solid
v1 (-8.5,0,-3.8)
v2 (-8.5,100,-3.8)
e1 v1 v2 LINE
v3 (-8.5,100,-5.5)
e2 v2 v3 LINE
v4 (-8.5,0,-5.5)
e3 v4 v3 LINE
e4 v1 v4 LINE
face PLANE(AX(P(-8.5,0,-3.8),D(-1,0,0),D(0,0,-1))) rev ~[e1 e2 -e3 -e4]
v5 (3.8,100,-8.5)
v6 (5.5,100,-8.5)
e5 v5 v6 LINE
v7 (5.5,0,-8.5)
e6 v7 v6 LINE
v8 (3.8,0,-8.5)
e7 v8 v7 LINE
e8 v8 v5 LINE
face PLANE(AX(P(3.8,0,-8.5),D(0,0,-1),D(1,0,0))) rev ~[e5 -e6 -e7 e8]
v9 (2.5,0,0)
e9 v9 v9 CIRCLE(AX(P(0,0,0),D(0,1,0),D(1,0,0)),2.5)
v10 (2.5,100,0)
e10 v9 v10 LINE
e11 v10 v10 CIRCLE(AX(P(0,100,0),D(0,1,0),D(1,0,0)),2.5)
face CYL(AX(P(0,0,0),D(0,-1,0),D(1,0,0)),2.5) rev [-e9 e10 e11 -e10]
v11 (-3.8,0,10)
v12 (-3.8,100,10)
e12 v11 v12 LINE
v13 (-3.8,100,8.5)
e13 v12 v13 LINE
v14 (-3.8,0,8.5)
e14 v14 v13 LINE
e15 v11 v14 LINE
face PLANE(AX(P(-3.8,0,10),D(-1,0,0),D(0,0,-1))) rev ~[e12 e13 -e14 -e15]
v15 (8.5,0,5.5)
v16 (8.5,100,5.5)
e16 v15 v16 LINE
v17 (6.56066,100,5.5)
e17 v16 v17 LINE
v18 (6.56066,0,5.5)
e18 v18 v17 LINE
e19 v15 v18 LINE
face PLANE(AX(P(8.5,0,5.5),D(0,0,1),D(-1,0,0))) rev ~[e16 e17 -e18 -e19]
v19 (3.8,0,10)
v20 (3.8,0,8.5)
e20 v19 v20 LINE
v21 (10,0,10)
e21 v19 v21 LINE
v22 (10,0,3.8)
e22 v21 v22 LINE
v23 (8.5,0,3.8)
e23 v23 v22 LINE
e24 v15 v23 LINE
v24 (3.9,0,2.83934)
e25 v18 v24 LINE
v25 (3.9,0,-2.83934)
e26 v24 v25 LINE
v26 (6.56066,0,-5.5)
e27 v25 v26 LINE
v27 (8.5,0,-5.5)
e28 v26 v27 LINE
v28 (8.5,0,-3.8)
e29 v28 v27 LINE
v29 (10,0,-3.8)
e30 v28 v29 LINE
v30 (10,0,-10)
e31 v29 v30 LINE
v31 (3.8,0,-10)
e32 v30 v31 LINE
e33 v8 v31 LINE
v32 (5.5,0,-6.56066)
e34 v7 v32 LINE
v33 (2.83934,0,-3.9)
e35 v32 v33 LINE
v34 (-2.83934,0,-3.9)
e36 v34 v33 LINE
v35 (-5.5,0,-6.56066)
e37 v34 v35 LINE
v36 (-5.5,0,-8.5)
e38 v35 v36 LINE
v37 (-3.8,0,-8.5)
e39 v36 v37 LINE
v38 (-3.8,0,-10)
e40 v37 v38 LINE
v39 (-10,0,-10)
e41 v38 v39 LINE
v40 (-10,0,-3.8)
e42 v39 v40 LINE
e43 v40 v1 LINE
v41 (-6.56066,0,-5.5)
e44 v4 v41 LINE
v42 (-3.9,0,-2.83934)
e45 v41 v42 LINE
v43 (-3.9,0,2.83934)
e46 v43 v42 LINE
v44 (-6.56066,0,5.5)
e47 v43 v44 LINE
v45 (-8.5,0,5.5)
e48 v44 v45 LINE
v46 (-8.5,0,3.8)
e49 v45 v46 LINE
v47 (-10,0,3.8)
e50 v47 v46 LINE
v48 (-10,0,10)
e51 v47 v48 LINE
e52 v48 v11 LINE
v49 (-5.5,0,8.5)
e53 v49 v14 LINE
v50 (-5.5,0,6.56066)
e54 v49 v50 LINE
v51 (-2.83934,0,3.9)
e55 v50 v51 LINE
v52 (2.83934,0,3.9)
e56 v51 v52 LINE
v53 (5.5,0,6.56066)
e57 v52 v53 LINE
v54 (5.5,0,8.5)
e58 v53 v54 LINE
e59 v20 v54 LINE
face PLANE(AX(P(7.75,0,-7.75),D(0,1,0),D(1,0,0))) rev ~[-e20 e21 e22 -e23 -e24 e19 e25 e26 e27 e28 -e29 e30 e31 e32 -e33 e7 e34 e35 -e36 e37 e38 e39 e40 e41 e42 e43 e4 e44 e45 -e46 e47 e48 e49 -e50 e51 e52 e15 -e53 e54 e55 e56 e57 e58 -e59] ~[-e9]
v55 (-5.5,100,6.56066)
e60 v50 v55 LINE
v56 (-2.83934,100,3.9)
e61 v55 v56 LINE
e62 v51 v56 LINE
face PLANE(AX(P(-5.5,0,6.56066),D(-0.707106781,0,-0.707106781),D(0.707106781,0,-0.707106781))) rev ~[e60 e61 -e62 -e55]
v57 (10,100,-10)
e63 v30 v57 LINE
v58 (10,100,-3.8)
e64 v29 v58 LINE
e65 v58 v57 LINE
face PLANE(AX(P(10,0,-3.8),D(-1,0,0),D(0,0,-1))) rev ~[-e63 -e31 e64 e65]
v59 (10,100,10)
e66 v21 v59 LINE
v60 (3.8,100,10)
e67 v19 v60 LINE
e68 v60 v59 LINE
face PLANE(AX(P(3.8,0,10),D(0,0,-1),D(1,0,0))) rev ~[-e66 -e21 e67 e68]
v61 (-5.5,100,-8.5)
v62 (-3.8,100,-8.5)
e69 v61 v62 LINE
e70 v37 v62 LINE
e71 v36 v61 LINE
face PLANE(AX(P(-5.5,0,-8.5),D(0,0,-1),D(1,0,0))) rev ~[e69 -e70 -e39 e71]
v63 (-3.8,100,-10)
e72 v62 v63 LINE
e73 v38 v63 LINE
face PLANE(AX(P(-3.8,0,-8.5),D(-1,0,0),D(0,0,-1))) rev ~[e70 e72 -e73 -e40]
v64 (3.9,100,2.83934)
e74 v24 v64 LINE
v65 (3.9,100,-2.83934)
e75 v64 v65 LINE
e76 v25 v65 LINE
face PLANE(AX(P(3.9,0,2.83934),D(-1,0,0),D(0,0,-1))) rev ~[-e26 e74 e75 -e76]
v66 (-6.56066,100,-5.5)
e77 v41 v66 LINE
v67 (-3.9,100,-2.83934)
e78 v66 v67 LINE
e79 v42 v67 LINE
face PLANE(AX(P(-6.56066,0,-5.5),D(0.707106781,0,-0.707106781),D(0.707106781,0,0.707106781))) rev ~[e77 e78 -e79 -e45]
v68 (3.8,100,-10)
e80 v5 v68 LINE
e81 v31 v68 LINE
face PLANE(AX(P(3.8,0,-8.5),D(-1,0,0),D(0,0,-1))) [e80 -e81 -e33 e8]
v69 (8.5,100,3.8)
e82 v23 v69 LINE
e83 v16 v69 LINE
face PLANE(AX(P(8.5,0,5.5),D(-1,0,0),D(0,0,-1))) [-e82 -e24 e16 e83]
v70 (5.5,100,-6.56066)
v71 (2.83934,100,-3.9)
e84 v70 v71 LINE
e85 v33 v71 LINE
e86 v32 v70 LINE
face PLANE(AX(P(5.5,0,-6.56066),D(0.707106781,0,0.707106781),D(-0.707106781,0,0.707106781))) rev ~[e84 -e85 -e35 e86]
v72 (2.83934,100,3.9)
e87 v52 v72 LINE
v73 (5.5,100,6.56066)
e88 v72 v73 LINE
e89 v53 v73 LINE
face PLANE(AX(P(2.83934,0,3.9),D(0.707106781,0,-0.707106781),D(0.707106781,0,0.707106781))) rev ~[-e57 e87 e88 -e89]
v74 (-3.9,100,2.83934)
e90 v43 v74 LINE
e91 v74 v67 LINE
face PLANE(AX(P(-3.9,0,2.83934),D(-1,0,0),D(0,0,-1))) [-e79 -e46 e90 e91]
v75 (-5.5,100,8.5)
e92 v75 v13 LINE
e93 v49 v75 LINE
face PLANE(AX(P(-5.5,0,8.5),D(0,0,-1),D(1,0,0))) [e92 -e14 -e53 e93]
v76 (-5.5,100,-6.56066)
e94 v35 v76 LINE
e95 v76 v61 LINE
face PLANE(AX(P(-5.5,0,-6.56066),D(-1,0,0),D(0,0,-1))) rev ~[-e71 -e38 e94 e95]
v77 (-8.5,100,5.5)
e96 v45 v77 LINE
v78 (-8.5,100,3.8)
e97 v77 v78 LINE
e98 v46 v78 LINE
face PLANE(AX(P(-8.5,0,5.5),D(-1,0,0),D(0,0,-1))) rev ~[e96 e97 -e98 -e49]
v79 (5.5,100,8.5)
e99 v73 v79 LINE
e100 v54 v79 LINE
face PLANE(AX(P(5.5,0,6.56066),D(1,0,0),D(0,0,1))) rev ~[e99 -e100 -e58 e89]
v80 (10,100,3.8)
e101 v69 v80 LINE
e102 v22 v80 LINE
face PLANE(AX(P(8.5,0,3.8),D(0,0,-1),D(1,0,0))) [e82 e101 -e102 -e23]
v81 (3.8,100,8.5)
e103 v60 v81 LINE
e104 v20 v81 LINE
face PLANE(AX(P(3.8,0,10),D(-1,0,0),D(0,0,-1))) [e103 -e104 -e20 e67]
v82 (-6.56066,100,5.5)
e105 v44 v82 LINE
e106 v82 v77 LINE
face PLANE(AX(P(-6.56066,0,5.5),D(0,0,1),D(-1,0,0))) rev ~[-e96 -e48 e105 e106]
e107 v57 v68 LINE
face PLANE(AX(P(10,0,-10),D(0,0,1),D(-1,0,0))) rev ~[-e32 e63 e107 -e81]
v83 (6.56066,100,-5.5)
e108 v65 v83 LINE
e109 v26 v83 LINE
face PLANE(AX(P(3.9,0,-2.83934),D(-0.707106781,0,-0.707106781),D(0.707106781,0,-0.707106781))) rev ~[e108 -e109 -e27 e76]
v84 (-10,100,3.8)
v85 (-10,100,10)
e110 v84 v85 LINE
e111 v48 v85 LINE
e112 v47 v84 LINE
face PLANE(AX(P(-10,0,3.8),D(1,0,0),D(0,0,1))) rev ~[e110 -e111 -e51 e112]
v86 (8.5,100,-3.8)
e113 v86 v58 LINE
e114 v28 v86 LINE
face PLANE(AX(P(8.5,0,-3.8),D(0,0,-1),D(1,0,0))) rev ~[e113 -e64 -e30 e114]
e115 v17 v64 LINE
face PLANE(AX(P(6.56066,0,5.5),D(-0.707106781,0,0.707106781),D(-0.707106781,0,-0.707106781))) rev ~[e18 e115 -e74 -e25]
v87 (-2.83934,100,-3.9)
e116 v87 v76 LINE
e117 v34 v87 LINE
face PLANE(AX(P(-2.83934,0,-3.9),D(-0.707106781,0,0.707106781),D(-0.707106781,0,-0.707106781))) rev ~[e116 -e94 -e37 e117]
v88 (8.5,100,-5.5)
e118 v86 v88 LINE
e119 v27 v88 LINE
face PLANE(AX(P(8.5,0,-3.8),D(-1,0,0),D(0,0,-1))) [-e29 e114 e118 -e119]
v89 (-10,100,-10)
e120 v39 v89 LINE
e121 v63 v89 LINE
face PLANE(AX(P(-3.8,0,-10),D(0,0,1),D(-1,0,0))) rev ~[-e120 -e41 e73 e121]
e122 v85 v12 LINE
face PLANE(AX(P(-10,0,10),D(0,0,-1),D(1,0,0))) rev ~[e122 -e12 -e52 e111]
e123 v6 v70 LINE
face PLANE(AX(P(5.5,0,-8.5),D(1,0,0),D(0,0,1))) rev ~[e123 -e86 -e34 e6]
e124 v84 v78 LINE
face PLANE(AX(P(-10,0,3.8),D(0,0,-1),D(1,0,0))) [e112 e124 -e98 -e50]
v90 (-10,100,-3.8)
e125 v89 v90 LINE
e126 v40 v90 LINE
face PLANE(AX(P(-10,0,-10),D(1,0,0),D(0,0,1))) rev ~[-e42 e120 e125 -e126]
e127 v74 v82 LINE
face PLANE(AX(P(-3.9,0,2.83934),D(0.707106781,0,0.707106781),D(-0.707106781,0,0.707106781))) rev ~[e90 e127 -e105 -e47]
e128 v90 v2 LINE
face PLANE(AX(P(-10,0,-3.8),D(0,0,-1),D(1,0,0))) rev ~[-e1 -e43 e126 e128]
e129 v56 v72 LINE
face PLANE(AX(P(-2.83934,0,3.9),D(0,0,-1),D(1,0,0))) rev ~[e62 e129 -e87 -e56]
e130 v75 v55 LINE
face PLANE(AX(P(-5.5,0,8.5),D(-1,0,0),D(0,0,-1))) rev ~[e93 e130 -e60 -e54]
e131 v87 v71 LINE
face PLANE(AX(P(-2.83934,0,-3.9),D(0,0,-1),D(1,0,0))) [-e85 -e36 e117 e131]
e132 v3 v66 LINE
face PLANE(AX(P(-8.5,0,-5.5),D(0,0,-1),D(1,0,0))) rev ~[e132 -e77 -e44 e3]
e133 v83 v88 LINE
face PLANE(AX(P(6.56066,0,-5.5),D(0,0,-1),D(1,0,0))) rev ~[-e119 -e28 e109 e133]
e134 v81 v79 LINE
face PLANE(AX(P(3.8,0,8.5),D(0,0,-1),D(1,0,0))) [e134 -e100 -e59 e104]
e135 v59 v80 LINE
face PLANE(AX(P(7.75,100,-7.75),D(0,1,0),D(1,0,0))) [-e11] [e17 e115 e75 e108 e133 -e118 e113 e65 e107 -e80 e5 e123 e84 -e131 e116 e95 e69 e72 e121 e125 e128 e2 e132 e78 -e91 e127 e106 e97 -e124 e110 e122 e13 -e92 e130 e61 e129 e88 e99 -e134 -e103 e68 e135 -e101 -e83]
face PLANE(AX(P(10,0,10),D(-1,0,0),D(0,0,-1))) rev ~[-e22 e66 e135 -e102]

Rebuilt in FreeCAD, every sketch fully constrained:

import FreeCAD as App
import Part
import Sketcher
from FreeCAD import Vector


def add_polygon(sketch, points):
    """Adds a closed chain of lines whose ends are joined by coincident constraints."""
    first, n = sketch.GeometryCount, len(points)
    for a, b in zip(points, points[1:] + points[:1]):
        sketch.addGeometry(Part.LineSegment(App.Vector(*a, 0), App.Vector(*b, 0)), False)
    for i in range(n):
        sketch.addConstraint(Sketcher.Constraint("Coincident", first + i, 2, first + (i + 1) % n, 1))

doc = App.newDocument("Part")
params = doc.addObject("Spreadsheet::Sheet", "Params")
for row, (alias, value) in enumerate([
    ("sketch1_diameter", "5 mm"),
    ("sketch1_width", "1.5 mm"),
    ("sketch1_width2", "6.2 mm"),
    ("sketch1_width3", "1.7 mm"),
    ("pad1_length", "100 mm"),
], start=1):
    params.set(f"A{row}", alias)
    params.set(f"B{row}", "=" + value)
    params.setAlias(f"B{row}", alias)

body = doc.addObject("PartDesign::Body", "Body")

sketch1 = doc.addObject("Sketcher::SketchObject", "Sketch")
body.addObject(sketch1)
sketch1.AttachmentSupport = (doc.XZ_Plane, [""])
sketch1.MapMode = "FlatFace"
add_polygon(sketch1, [(6.6, -5.5), (8.5, -5.5), (8.5, -3.8), (10, -3.8), (10, -10), (3.8, -10), (3.8, -8.5), (5.5, -8.5), (5.5, -6.6), (2.8, -3.9), (-2.8, -3.9), (-5.5, -6.6), (-5.5, -8.5), (-3.8, -8.5), (-3.8, -10), (-10, -10), (-10, -3.8), (-8.5, -3.8), (-8.5, -5.5), (-6.6, -5.5), (-3.9, -2.8), (-3.9, 2.8), (-6.6, 5.5), (-8.5, 5.5), (-8.5, 3.8), (-10, 3.8), (-10, 10), (-3.8, 10), (-3.8, 8.5), (-5.5, 8.5), (-5.5, 6.6), (-2.8, 3.9), (2.8, 3.9), (5.5, 6.6), (5.5, 8.5), (3.8, 8.5), (3.8, 10), (10, 10), (10, 3.8), (8.5, 3.8), (8.5, 5.5), (6.6, 5.5), (3.9, 2.8), (3.9, -2.8)])
sketch1.addGeometry(Part.Circle(Vector(0, 0, 0), Vector(0, 0, 1), 2.5), False)
sketch1.addConstraint([
    Sketcher.Constraint("Horizontal", 0),
    Sketcher.Constraint("Vertical", 1),
    Sketcher.Constraint("Horizontal", 2),
    Sketcher.Constraint("Vertical", 3),
    Sketcher.Constraint("Horizontal", 4),
    Sketcher.Constraint("Vertical", 5),
    Sketcher.Constraint("Horizontal", 6),
    Sketcher.Constraint("Vertical", 7),
    Sketcher.Constraint("Horizontal", 9),
    Sketcher.Constraint("Vertical", 11),
    Sketcher.Constraint("Horizontal", 12),
    Sketcher.Constraint("Vertical", 13),
    Sketcher.Constraint("Horizontal", 14),
    Sketcher.Constraint("Vertical", 15),
    Sketcher.Constraint("Horizontal", 16),
    Sketcher.Constraint("Vertical", 17),
    Sketcher.Constraint("Horizontal", 18),
    Sketcher.Constraint("Vertical", 20),
    Sketcher.Constraint("Horizontal", 22),
    Sketcher.Constraint("Vertical", 23),
    Sketcher.Constraint("Horizontal", 24),
    Sketcher.Constraint("Vertical", 25),
    Sketcher.Constraint("Horizontal", 26),
    Sketcher.Constraint("Vertical", 27),
    Sketcher.Constraint("Horizontal", 28),
    Sketcher.Constraint("Vertical", 29),
    Sketcher.Constraint("Horizontal", 31),
    Sketcher.Constraint("Vertical", 33),
    Sketcher.Constraint("Horizontal", 34),
    Sketcher.Constraint("Vertical", 35),
    Sketcher.Constraint("Horizontal", 36),
    Sketcher.Constraint("Vertical", 37),
    Sketcher.Constraint("Horizontal", 38),
    Sketcher.Constraint("Vertical", 39),
    Sketcher.Constraint("Horizontal", 40),
    Sketcher.Constraint("Vertical", 42),
    Sketcher.Constraint("Coincident", 44, 3, -1, 1),
    Sketcher.Constraint("Symmetric", 0, 2, 22, 2, -1, 1),
    Sketcher.Constraint("Symmetric", 2, 2, 24, 2, -1, 1),
    Sketcher.Constraint("Symmetric", 4, 2, 26, 2, -1, 1),
    Sketcher.Constraint("Symmetric", 6, 2, 28, 2, -1, 1),
    Sketcher.Constraint("Symmetric", 8, 2, 30, 2, -1, 1),
    Sketcher.Constraint("Symmetric", 10, 2, 32, 2, -1, 1),
    Sketcher.Constraint("Symmetric", 12, 2, 34, 2, -1, 1),
    Sketcher.Constraint("Symmetric", 14, 2, 36, 2, -1, 1),
    Sketcher.Constraint("Symmetric", 16, 2, 38, 2, -1, 1),
    Sketcher.Constraint("Symmetric", 18, 2, 40, 2, -1, 1),
    Sketcher.Constraint("Symmetric", 19, 2, 41, 2, -1, 1),
    Sketcher.Constraint("Symmetric", 7, 2, 10, 2, -2),
    Sketcher.Constraint("Symmetric", 5, 2, 12, 2, -2),
    Sketcher.Constraint("Symmetric", 3, 2, 14, 2, -2),
    Sketcher.Constraint("Symmetric", 1, 2, 16, 2, -2),
    Sketcher.Constraint("Symmetric", 21, 2, 40, 2, -2),
    Sketcher.Constraint("Perpendicular", 8, 10),
    Sketcher.Constraint("Parallel", 10, 19),
    Sketcher.Constraint("Perpendicular", 19, 21),
    Sketcher.Constraint("Parallel", 21, 30),
    Sketcher.Constraint("Perpendicular", 30, 32),
    Sketcher.Constraint("Perpendicular", 41, 43),
    Sketcher.Constraint("Horizontal", 20, 2, 41, 2),
    Sketcher.Constraint("Horizontal", 19, 2, 42, 2),
    Sketcher.Constraint("Equal", 34, 1),
    Sketcher.Constraint("Equal", 36, 3),
    Sketcher.Constraint("Equal", 38, 5),
    Sketcher.Constraint("Equal", 40, 7),
    Sketcher.Constraint("Equal", 31, 20),
    Sketcher.Constraint("Equal", 10, 19),
    Sketcher.Constraint("Diameter", 44, 5.0),
    Sketcher.Constraint("DistanceX", 2, 1, 2, 2, 1.5),
    Sketcher.Constraint("DistanceX", 4, 2, 4, 1, 6.2),
    Sketcher.Constraint("DistanceX", 6, 1, 6, 2, 1.7),
    Sketcher.Constraint("DistanceX", -1, 1, 2, 2, 10.0),
    Sketcher.Constraint("DistanceY", 8, 2, -1, 1, 3.9),
    Sketcher.Constraint("DistanceX", 0, 1, 0, 2, 1.93934),
])
sketch1.setExpression("Constraints[111]", "Params.sketch1_diameter")
sketch1.setExpression("Constraints[112]", "Params.sketch1_width")
sketch1.setExpression("Constraints[113]", "Params.sketch1_width2")
sketch1.setExpression("Constraints[114]", "Params.sketch1_width3")
pad1 = doc.addObject("PartDesign::Pad", "Pad")
body.addObject(pad1)
pad1.Profile = sketch1
pad1.setExpression("Length", "Params.pad1_length")
pad1.Reversed = True

doc.recompute()
